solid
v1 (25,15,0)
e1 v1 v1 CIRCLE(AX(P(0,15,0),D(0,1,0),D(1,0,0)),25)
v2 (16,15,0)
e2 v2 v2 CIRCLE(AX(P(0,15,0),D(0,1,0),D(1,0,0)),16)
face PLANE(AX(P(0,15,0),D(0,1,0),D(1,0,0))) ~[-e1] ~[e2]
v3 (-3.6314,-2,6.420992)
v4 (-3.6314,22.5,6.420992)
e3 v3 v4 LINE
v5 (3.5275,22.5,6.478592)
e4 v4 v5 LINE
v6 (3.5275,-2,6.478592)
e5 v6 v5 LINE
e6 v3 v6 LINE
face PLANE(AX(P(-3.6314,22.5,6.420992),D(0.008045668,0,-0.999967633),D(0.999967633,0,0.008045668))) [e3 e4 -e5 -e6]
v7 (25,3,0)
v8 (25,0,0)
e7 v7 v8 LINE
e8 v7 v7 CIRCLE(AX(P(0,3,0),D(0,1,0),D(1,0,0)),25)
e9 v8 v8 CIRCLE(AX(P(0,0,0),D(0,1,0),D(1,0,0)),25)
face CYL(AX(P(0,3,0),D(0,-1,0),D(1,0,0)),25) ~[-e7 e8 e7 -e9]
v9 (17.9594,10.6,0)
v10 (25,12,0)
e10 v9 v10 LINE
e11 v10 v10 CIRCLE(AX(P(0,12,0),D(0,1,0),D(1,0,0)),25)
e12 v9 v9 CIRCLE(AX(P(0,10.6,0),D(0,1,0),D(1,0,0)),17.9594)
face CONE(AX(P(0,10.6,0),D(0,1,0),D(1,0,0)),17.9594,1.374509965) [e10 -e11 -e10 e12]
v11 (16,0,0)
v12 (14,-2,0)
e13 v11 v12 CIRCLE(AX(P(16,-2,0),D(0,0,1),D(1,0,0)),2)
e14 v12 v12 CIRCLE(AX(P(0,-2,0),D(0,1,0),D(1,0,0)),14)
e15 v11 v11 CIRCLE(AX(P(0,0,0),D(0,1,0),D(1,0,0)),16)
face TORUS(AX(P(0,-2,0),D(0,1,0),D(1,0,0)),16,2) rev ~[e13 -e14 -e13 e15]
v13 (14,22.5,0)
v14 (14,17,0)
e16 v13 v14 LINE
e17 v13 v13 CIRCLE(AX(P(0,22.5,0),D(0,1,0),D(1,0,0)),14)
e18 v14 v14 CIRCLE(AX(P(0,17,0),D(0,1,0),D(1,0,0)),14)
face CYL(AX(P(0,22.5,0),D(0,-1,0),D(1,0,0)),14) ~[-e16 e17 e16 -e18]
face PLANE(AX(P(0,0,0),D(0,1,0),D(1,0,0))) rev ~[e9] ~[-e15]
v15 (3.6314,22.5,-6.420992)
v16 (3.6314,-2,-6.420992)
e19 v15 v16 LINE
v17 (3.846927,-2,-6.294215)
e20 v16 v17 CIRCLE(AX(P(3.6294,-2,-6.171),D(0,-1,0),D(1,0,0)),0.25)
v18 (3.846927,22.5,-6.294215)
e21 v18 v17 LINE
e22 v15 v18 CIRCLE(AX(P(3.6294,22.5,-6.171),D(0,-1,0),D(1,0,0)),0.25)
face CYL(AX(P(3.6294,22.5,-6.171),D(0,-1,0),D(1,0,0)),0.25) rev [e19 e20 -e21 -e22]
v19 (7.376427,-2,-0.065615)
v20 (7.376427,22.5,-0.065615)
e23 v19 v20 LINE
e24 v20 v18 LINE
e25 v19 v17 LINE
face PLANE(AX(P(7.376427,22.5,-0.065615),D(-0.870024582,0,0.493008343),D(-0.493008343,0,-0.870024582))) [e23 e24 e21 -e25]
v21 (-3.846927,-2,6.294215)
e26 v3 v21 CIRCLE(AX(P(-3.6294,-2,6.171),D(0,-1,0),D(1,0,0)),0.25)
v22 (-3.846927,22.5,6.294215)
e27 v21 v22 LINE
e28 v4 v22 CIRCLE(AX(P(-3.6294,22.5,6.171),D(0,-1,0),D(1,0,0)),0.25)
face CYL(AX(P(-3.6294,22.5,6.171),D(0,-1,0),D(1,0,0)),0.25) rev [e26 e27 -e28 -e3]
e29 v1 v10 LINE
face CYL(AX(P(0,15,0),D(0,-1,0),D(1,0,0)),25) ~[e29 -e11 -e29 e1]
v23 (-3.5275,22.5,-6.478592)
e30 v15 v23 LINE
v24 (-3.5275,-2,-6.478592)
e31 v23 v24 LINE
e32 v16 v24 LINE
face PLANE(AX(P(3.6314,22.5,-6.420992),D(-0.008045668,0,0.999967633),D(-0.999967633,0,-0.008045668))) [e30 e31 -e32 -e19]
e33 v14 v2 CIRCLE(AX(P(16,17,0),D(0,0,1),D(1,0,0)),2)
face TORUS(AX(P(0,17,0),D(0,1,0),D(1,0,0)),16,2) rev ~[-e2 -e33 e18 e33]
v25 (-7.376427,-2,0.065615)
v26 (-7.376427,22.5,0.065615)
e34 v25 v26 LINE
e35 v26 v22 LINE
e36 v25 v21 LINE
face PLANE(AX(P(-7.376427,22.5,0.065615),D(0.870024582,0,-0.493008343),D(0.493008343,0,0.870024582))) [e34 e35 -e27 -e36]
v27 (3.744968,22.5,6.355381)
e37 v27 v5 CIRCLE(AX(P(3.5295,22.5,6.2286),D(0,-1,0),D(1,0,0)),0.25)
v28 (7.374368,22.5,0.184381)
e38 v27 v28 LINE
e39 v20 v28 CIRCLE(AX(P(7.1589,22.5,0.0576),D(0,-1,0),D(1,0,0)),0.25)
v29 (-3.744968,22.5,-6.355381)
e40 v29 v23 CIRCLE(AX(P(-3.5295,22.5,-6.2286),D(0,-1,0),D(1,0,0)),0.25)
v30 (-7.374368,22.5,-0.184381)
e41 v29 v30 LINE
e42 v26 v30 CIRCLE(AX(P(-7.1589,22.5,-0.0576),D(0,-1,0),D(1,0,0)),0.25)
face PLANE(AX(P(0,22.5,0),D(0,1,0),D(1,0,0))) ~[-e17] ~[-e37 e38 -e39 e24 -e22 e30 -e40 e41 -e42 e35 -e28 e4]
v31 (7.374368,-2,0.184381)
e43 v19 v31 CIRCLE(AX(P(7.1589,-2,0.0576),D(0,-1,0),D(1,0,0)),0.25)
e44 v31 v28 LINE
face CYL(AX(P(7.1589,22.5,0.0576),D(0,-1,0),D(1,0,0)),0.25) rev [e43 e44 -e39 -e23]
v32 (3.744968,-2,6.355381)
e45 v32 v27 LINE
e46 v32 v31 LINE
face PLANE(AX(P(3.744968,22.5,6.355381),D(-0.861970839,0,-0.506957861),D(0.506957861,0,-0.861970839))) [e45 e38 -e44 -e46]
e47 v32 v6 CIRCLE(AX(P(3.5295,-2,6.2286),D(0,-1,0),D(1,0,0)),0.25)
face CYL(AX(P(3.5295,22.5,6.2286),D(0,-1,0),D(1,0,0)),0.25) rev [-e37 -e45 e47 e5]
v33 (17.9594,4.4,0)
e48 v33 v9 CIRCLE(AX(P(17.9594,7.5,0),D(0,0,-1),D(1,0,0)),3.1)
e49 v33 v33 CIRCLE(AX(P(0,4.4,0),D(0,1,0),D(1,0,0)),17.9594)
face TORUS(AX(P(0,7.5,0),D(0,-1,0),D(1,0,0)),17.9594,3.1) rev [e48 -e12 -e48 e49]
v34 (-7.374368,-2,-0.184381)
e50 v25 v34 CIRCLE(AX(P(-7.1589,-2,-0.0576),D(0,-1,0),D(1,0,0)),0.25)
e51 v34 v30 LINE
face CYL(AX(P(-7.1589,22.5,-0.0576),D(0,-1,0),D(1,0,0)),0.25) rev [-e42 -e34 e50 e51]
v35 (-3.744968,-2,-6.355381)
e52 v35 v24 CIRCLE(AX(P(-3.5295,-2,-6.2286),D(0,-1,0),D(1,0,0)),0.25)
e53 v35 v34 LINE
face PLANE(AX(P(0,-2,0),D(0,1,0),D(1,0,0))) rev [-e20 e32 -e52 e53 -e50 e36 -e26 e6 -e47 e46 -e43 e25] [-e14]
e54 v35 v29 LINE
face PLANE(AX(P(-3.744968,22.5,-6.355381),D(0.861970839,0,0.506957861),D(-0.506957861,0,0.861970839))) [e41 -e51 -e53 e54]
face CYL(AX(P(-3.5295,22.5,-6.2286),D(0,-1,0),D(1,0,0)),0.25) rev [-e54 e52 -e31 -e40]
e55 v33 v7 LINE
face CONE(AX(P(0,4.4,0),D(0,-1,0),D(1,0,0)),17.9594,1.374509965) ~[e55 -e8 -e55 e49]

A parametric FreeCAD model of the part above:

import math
import FreeCAD as App
import Part
import Sketcher
from FreeCAD import Vector
Q = App.Units.Quantity

doc = App.newDocument("Part")
body = doc.addObject("PartDesign::Body", "Body")

sketch1 = body.newObject("Sketcher::SketchObject", "Sketch")
sketch1.AttachmentSupport = (doc.getObject("XY_Plane"), [""])
sketch1.MapMode = "FlatFace"
sketch1.addGeometry([
    Part.LineSegment(Vector(14, 22.5, 0), Vector(0, 22.5, 0)),
    Part.LineSegment(Vector(0, 22.5, 0), Vector(0, -2, 0)),
    Part.LineSegment(Vector(0, -2, 0), Vector(14, -2, 0)),
    Part.ArcOfCircle(Part.Circle(Vector(16, -2, 0), Vector(0, 0, 1), 2), math.radians(90), math.radians(180)),
    Part.LineSegment(Vector(16, 0, 0), Vector(25, 0, 0)),
    Part.LineSegment(Vector(25, 0, 0), Vector(25, 3, 0)),
    Part.LineSegment(Vector(25, 3, 0), Vector(18, 4.4, 0)),
    Part.ArcOfCircle(Part.Circle(Vector(18, 7.5, 0), Vector(0, 0, 1), 3.1), math.radians(90), math.radians(270)),
    Part.LineSegment(Vector(18, 10.6, 0), Vector(25, 12, 0)),
    Part.LineSegment(Vector(25, 12, 0), Vector(25, 15, 0)),
    Part.LineSegment(Vector(25, 15, 0), Vector(16, 15, 0)),
    Part.ArcOfCircle(Part.Circle(Vector(16, 17, 0), Vector(0, 0, 1), 2), math.radians(180), math.radians(270)),
    Part.LineSegment(Vector(14, 17, 0), Vector(14, 22.5, 0)),
], False)
sketch1.addConstraint([
    Sketcher.Constraint("Coincident", 0, 2, 1, 1),
    Sketcher.Constraint("Coincident", 1, 2, 2, 1),
    Sketcher.Constraint("Coincident", 2, 2, 3, 2),
    Sketcher.Constraint("Tangent", 3, 1, 4, 1),
    Sketcher.Constraint("Coincident", 4, 2, 5, 1),
    Sketcher.Constraint("Coincident", 5, 2, 6, 1),
    Sketcher.Constraint("Coincident", 6, 2, 7, 2),
    Sketcher.Constraint("Coincident", 7, 1, 8, 1),
    Sketcher.Constraint("Coincident", 8, 2, 9, 1),
    Sketcher.Constraint("Coincident", 9, 2, 10, 1),
    Sketcher.Constraint("Tangent", 10, 2, 11, 2),
    Sketcher.Constraint("Tangent", 11, 1, 12, 1),
    Sketcher.Constraint("Coincident", 12, 2, 0, 1),
    Sketcher.Constraint("Horizontal", 0),
    Sketcher.Constraint("Vertical", 1),
    Sketcher.Constraint("Horizontal", 2),
    Sketcher.Constraint("Horizontal", 4),
    Sketcher.Constraint("Vertical", 5),
    Sketcher.Constraint("Vertical", 9),
    Sketcher.Constraint("Horizontal", 10),
    Sketcher.Constraint("Vertical", 12),
    Sketcher.Constraint("Equal", 3, 11),
    Sketcher.Constraint("PointOnObject", 0, 2, -2),
    Sketcher.Constraint("PointOnObject", 3, 1, -1),
    Sketcher.Constraint("Horizontal", 3, 3, 1, 2),
    Sketcher.Constraint("Vertical", 3, 3, 11, 3),
    Sketcher.Constraint("Vertical", 7, 3, 6, 2),
    Sketcher.Constraint("Vertical", 6, 2, 7, 1),
    Sketcher.Constraint("Vertical", 5, 2, 8, 2),
    Sketcher.Constraint("Equal", 5, 9),
    Sketcher.Constraint("Equal", 6, 8),
    Sketcher.Constraint("Radius", 3, 2.0),
    Sketcher.Constraint("Radius", 7, 3.1),
    Sketcher.Constraint("DistanceX", 0, 2, 0, 1, 14.0),
    Sketcher.Constraint("DistanceX", 4, 1, 4, 2, 9.0),
    Sketcher.Constraint("DistanceY", 5, 1, 5, 2, 3.0),
    Sketcher.Constraint("DistanceY", 1, 2, 1, 1, 24.5),
    Sketcher.Constraint("DistanceY", 12, 1, 12, 2, 5.5),
    Sketcher.Constraint("Distance", 6, 7.1784),
])
revolution = body.newObject("PartDesign::Revolution", "Revolution")
revolution.Profile = sketch1
revolution.ReferenceAxis = (sketch1, ["V_Axis"])
revolution.Angle = 360

sketch2 = body.newObject("Sketcher::SketchObject", "Sketch001")
sketch2.AttachmentSupport = (doc.getObject("XZ_Plane"), [""])
sketch2.MapMode = "FlatFace"
sketch2.AttachmentOffset = App.Placement(Vector(0, 0, -22.5), App.Rotation())
sketch2.addGeometry([
    Part.LineSegment(Vector(3.63, -6.42, 0), Vector(-3.53, -6.48, 0)),
    Part.ArcOfCircle(Part.Circle(Vector(-3.53, -6.23, 0), Vector(0, 0, 1), 0.25), math.radians(-150), math.radians(-90)),
    Part.LineSegment(Vector(-3.75, -6.36, 0), Vector(-7.37, -0.18, 0)),
    Part.ArcOfCircle(Part.Circle(Vector(-7.16, -0.06, 0), Vector(0, 0, 1), 0.25), math.radians(150), math.radians(210)),
    Part.LineSegment(Vector(-7.38, 0.07, 0), Vector(-3.85, 6.29, 0)),
    Part.ArcOfCircle(Part.Circle(Vector(-3.63, 6.17, 0), Vector(0, 0, 1), 0.25), math.radians(90), math.radians(150)),
    Part.LineSegment(Vector(-3.63, 6.42, 0), Vector(3.53, 6.48, 0)),
    Part.ArcOfCircle(Part.Circle(Vector(3.53, 6.23, 0), Vector(0, 0, 1), 0.25), math.radians(30), math.radians(90)),
    Part.LineSegment(Vector(3.75, 6.36, 0), Vector(7.37, 0.18, 0)),
    Part.ArcOfCircle(Part.Circle(Vector(7.16, 0.06, 0), Vector(0, 0, 1), 0.25), math.radians(-30), math.radians(30)),
    Part.LineSegment(Vector(7.38, -0.07, 0), Vector(3.85, -6.29, 0)),
    Part.ArcOfCircle(Part.Circle(Vector(3.63, -6.17, 0), Vector(0, 0, 1), 0.25), math.radians(-90), math.radians(-30)),
], False)
sketch2.addConstraint([
    Sketcher.Constraint("Tangent", 0, 2, 1, 2),
    Sketcher.Constraint("Tangent", 1, 1, 2, 1),
    Sketcher.Constraint("Tangent", 2, 2, 3, 2),
    Sketcher.Constraint("Tangent", 3, 1, 4, 1),
    Sketcher.Constraint("Tangent", 4, 2, 5, 2),
    Sketcher.Constraint("Tangent", 5, 1, 6, 1),
    Sketcher.Constraint("Tangent", 6, 2, 7, 2),
    Sketcher.Constraint("Tangent", 7, 1, 8, 1),
    Sketcher.Constraint("Tangent", 8, 2, 9, 2),
    Sketcher.Constraint("Tangent", 9, 1, 10, 1),
    Sketcher.Constraint("Tangent", 10, 2, 11, 2),
    Sketcher.Constraint("Tangent", 11, 1, 0, 1),
    Sketcher.Constraint("Equal", 1, 3),
    Sketcher.Constraint("Equal", 3, 5),
    Sketcher.Constraint("Equal", 5, 7),
    Sketcher.Constraint("Equal", 7, 9),
    Sketcher.Constraint("Equal", 9, 11),
    Sketcher.Constraint("Symmetric", 1, 3, 7, 3, -1, 1),
    Sketcher.Constraint("Symmetric", 3, 3, 9, 3, -1, 1),
    Sketcher.Constraint("Symmetric", 5, 3, 11, 3, -1, 1),
    Sketcher.Constraint("Equal", 0, 2),
    Sketcher.Constraint("Equal", 2, 4),
    Sketcher.Constraint("Radius", 1, 0.25),
    Sketcher.Constraint("Angle", 0, Q("-179.539 deg")),
    Sketcher.Constraint("DistanceX", 5, 3, 1, 3, 0.1),
    Sketcher.Constraint("DistanceY", 2, 2, 3, 1, 0.25),
    Sketcher.Constraint("Distance", 4, 7.159),
])
pocket1 = body.newObject("PartDesign::Pocket", "Pocket")
pocket1.Profile = sketch2
pocket1.Type = "ThroughAll"
pocket1.Midplane = True

doc.recompute()
